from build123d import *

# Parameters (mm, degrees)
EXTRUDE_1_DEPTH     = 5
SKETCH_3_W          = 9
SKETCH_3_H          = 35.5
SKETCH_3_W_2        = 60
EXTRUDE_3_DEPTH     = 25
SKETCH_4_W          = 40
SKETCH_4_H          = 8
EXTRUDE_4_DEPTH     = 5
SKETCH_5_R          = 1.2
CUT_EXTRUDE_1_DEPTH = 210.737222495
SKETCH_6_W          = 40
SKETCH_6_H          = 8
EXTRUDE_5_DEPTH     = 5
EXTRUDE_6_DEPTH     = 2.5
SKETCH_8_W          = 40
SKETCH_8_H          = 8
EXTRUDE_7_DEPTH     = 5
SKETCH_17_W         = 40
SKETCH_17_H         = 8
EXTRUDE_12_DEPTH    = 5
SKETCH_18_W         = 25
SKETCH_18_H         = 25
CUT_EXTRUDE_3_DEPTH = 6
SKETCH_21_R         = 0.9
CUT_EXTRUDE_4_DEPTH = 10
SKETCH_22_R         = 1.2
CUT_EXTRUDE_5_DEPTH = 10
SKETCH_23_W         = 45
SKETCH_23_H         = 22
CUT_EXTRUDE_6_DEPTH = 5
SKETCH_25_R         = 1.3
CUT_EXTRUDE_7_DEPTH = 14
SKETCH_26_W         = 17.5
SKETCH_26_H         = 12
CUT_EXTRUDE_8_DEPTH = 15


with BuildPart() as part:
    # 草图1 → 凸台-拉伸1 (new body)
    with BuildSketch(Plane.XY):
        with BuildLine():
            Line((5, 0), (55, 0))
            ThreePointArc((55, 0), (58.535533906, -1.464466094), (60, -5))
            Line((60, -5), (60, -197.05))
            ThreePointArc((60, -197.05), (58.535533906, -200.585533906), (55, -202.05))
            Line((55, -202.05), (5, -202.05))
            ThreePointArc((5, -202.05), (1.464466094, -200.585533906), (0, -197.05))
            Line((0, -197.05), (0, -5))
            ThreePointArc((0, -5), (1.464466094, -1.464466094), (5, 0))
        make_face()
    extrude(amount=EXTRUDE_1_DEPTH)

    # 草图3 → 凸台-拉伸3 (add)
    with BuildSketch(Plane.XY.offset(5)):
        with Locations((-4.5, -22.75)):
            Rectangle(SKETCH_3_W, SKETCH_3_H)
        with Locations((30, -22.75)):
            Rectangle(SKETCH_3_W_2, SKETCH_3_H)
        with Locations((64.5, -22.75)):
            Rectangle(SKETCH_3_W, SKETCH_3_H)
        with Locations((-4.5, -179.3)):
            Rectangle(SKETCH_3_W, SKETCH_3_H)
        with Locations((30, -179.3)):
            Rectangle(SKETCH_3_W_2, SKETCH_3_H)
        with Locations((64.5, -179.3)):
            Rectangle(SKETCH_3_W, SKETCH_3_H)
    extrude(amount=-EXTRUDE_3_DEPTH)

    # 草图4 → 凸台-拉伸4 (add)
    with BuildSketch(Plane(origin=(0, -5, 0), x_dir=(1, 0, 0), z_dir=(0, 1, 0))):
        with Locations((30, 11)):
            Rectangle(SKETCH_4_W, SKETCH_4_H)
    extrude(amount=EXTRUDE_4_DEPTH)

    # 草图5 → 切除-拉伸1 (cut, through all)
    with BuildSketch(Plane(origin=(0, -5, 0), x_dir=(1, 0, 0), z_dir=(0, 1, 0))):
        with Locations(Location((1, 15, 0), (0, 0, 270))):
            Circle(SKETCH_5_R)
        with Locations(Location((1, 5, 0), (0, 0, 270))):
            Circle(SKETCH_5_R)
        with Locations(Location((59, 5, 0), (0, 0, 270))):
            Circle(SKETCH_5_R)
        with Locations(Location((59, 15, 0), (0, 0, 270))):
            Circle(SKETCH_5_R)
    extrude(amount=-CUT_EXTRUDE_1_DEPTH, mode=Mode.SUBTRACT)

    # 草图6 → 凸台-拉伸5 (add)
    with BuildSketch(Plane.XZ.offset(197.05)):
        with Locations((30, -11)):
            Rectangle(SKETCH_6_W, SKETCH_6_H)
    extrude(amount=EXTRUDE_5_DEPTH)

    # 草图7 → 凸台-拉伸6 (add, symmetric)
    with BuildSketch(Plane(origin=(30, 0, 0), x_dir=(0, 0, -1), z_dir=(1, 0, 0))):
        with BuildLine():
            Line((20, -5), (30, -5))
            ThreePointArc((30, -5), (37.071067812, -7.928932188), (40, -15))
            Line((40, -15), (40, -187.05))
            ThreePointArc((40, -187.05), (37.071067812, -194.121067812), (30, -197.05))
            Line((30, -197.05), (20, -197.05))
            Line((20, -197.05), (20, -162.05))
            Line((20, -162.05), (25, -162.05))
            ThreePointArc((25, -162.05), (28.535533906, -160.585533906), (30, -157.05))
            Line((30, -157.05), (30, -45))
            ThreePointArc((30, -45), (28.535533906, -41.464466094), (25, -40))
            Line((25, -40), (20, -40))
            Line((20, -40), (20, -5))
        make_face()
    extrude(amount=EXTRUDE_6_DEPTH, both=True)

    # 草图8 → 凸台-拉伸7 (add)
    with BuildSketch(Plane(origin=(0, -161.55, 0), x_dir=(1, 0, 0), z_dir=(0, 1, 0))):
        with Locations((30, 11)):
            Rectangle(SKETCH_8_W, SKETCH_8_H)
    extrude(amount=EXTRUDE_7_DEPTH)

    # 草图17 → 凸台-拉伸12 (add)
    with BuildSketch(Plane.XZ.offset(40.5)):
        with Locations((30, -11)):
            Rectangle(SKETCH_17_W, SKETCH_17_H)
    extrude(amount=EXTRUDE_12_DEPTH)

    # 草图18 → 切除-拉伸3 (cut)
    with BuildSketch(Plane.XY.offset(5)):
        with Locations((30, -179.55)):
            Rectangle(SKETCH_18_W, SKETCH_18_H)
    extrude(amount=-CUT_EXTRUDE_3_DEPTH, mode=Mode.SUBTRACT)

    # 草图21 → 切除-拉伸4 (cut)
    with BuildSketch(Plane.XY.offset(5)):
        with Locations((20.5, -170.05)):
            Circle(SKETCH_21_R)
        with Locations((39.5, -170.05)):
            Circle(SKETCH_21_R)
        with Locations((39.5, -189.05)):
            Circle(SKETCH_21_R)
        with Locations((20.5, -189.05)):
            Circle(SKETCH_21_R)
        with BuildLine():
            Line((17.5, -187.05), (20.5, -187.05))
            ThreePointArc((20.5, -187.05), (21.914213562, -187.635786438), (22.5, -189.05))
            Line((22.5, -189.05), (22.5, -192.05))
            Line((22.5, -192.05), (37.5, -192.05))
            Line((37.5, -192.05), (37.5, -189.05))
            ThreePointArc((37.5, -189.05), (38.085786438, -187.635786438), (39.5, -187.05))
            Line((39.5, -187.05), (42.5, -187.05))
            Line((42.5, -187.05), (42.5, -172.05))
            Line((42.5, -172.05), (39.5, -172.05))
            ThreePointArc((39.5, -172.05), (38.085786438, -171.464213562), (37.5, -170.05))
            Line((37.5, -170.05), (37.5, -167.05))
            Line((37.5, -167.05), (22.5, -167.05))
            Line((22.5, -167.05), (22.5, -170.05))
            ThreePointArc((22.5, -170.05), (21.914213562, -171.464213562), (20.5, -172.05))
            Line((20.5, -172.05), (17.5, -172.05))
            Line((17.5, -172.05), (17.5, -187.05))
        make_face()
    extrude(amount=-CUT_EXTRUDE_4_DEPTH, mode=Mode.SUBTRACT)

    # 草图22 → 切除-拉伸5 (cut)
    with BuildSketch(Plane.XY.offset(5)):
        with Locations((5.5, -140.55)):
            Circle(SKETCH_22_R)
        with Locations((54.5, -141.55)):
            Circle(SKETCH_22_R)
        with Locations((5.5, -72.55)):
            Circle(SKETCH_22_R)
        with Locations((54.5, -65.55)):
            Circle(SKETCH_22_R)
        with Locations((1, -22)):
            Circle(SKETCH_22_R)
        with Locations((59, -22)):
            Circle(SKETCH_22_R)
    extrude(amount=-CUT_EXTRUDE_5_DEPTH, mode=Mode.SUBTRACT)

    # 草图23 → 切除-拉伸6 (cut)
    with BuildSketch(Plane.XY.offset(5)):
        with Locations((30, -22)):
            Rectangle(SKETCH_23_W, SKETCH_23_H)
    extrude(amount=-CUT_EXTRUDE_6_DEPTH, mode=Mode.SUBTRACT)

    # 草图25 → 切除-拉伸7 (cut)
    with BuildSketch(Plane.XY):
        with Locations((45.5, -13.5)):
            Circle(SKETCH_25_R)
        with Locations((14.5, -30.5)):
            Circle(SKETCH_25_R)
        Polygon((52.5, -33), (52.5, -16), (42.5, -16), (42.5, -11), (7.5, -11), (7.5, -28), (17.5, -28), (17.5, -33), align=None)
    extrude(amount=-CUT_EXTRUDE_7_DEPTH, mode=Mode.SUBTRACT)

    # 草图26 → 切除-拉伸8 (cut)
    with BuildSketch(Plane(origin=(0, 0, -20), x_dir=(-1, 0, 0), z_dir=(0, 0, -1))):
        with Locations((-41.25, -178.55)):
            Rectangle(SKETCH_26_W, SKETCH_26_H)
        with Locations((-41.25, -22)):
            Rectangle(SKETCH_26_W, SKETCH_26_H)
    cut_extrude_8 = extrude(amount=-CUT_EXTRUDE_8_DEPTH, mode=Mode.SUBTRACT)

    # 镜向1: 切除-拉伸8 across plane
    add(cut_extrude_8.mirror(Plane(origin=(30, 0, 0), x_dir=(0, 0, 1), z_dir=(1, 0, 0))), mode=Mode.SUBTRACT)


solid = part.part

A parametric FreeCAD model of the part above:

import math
import FreeCAD as App
import Part
import Sketcher
from FreeCAD import Vector


def add_polygon(sketch, points):
    """Adds a closed chain of lines whose ends are joined by coincident constraints."""
    first, n = sketch.GeometryCount, len(points)
    for a, b in zip(points, points[1:] + points[:1]):
        sketch.addGeometry(Part.LineSegment(App.Vector(*a, 0), App.Vector(*b, 0)), False)
    for i in range(n):
        sketch.addConstraint(Sketcher.Constraint("Coincident", first + i, 2, first + (i + 1) % n, 1))

doc = App.newDocument("Part")
body = doc.addObject("PartDesign::Body", "Body")

# Sketch on XY plane
sketch1 = body.newObject("Sketcher::SketchObject", "Sketch")
sketch1.AttachmentSupport = (doc.getObject("XY_Plane"), [""])
sketch1.MapMode = "FlatFace"
sketch1.addGeometry([
    Part.LineSegment(Vector(55, 0, 0), Vector(5, 0, 0)),  # 0
    Part.ArcOfCircle(Part.Circle(Vector(5, -5, 0), Vector(0, 0, 1), 5), math.radians(90), math.radians(180)),  # 1
    Part.LineSegment(Vector(0, -5, 0), Vector(0, -197, 0)),  # 2
    Part.ArcOfCircle(Part.Circle(Vector(5, -197, 0), Vector(0, 0, 1), 5), math.radians(180), math.radians(270)),  # 3
    Part.LineSegment(Vector(5, -202, 0), Vector(55, -202, 0)),  # 4
    Part.ArcOfCircle(Part.Circle(Vector(55, -197, 0), Vector(0, 0, 1), 5), math.radians(-90), math.radians(0)),  # 5
    Part.LineSegment(Vector(60, -197, 0), Vector(60, -5, 0)),  # 6
    Part.ArcOfCircle(Part.Circle(Vector(55, -5, 0), Vector(0, 0, 1), 5), math.radians(0), math.radians(90)),  # 7
], False)
sketch1.addConstraint([
    Sketcher.Constraint("Tangent", 0, 2, 1, 1),
    Sketcher.Constraint("Tangent", 1, 2, 2, 1),
    Sketcher.Constraint("Tangent", 2, 2, 3, 1),
    Sketcher.Constraint("Tangent", 3, 2, 4, 1),
    Sketcher.Constraint("Tangent", 4, 2, 5, 1),
    Sketcher.Constraint("Tangent", 5, 2, 6, 1),
    Sketcher.Constraint("Tangent", 6, 2, 7, 1),
    Sketcher.Constraint("Tangent", 7, 2, 0, 1),
    Sketcher.Constraint("Horizontal", 0),
    Sketcher.Constraint("Vertical", 2),
    Sketcher.Constraint("Horizontal", 4),
    Sketcher.Constraint("Vertical", 6),
    Sketcher.Constraint("Equal", 1, 3),
    Sketcher.Constraint("Equal", 3, 5),
    Sketcher.Constraint("Equal", 5, 7),
    Sketcher.Constraint("PointOnObject", 0, 2, -1),
    Sketcher.Constraint("PointOnObject", 1, 2, -2),
    Sketcher.Constraint("Radius", 1, 5.0),
    Sketcher.Constraint("DistanceX", 0, 2, 0, 1, 50.0),
    Sketcher.Constraint("DistanceY", 2, 2, 2, 1, 192.05),
])
pad1 = body.newObject("PartDesign::Pad", "Pad")
pad1.Profile = sketch1
pad1.Length = 5

# Sketch on XY plane
sketch2 = body.newObject("Sketcher::SketchObject", "Sketch001")
sketch2.AttachmentSupport = (doc.getObject("XY_Plane"), [""])
sketch2.MapMode = "FlatFace"
sketch2.AttachmentOffset = App.Placement(Vector(0, 0, 5), App.Rotation())
add_polygon(sketch2, [(-9, -5), (-9, -40), (69, -40), (69, -5)])  # lines 0-3
add_polygon(sketch2, [(-9, -162), (-9, -197), (69, -197), (69, -162)])  # lines 4-7
sketch2.addConstraint([
    Sketcher.Constraint("Vertical", 0),
    Sketcher.Constraint("Horizontal", 1),
    Sketcher.Constraint("Vertical", 2),
    Sketcher.Constraint("Horizontal", 3),
    Sketcher.Constraint("Vertical", 4),
    Sketcher.Constraint("Horizontal", 5),
    Sketcher.Constraint("Vertical", 6),
    Sketcher.Constraint("Horizontal", 7),
    Sketcher.Constraint("Vertical", 3, 2, 4, 2),
    Sketcher.Constraint("Vertical", 2, 2, 5, 2),
    Sketcher.Constraint("Equal", 2, 4),
    Sketcher.Constraint("DistanceX", 1, 1, 1, 2, 78.0),
    Sketcher.Constraint("DistanceY", 0, 2, 0, 1, 35.5),
    Sketcher.Constraint("DistanceX", 0, 2, -1, 1, 9.0),
    Sketcher.Constraint("DistanceY", 2, 2, -1, 1, 5.0),
    Sketcher.Constraint("DistanceY", 4, 2, -1, 1, 197.05),
])
pad2 = body.newObject("PartDesign::Pad", "Pad001")
pad2.Profile = sketch2
pad2.Length = 25
pad2.Reversed = True

# Sketch on XZ plane
sketch3 = body.newObject("Sketcher::SketchObject", "Sketch002")
sketch3.AttachmentSupport = (doc.getObject("XZ_Plane"), [""])
sketch3.MapMode = "FlatFace"
sketch3.AttachmentOffset = App.Placement(Vector(0, 0, 5), App.Rotation())
add_polygon(sketch3, [(10, -15), (10, -7), (50, -7), (50, -15)])  # lines 0-3
sketch3.addConstraint([
    Sketcher.Constraint("Vertical", 0),
    Sketcher.Constraint("Horizontal", 1),
    Sketcher.Constraint("Vertical", 2),
    Sketcher.Constraint("Horizontal", 3),
    Sketcher.Constraint("DistanceX", 1, 1, 1, 2, 40.0),
    Sketcher.Constraint("DistanceY", 0, 1, 0, 2, 8.0),
    Sketcher.Constraint("DistanceX", -1, 1, 0, 2, 10.0),
    Sketcher.Constraint("DistanceY", 0, 2, -1, 1, 7.0),
])
pad3 = body.newObject("PartDesign::Pad", "Pad002")
pad3.Profile = sketch3
pad3.Length = 5
pad3.Reversed = True

# Sketch on XZ plane
sketch4 = body.newObject("Sketcher::SketchObject", "Sketch003")
sketch4.AttachmentSupport = (doc.getObject("XZ_Plane"), [""])
sketch4.MapMode = "FlatFace"
sketch4.AttachmentOffset = App.Placement(Vector(0, 0, 5), App.Rotation())
sketch4.addGeometry([
    Part.Circle(Vector(1, -15, 0), Vector(0, 0, 1), 1.2),
    Part.Circle(Vector(1, -5, 0), Vector(0, 0, 1), 1.2),
    Part.Circle(Vector(59, -5, 0), Vector(0, 0, 1), 1.2),
    Part.Circle(Vector(59, -15, 0), Vector(0, 0, 1), 1.2),
], False)
sketch4.addConstraint([
    Sketcher.Constraint("Equal", 0, 1),
    Sketcher.Constraint("Equal", 1, 2),
    Sketcher.Constraint("Equal", 2, 3),
    Sketcher.Constraint("Horizontal", 1, 3, 2, 3),
    Sketcher.Constraint("Horizontal", 0, 3, 3, 3),
    Sketcher.Constraint("Vertical", 0, 3, 1, 3),
    Sketcher.Constraint("Vertical", 2, 3, 3, 3),
    Sketcher.Constraint("Diameter", 0, 2.4),
    Sketcher.Constraint("DistanceX", -1, 1, 0, 3, 1.0),
    Sketcher.Constraint("DistanceY", 0, 3, -1, 1, 15.0),
    Sketcher.Constraint("DistanceY", 1, 3, -1, 1, 5.0),
    Sketcher.Constraint("DistanceX", -1, 1, 2, 3, 59.0),
])
pocket1 = body.newObject("PartDesign::Pocket", "Pocket")
pocket1.Profile = sketch4
pocket1.Type = "ThroughAll"
pocket1.Reversed = True

# Sketch on XZ plane
sketch5 = body.newObject("Sketcher::SketchObject", "Sketch004")
sketch5.AttachmentSupport = (doc.getObject("XZ_Plane"), [""])
sketch5.MapMode = "FlatFace"
sketch5.AttachmentOffset = App.Placement(Vector(0, 0, 197.05), App.Rotation())
add_polygon(sketch5, [(10, -7), (10, -15), (50, -15), (50, -7)])  # lines 0-3
sketch5.addConstraint([
    Sketcher.Constraint("Vertical", 0),
    Sketcher.Constraint("Horizontal", 1),
    Sketcher.Constraint("Vertical", 2),
    Sketcher.Constraint("Horizontal", 3),
    Sketcher.Constraint("DistanceX", 1, 1, 1, 2, 40.0),
    Sketcher.Constraint("DistanceY", 0, 2, 0, 1, 8.0),
    Sketcher.Constraint("DistanceX", -1, 1, 0, 2, 10.0),
    Sketcher.Constraint("DistanceY", 0, 2, -1, 1, 15.0),
])
pad4 = body.newObject("PartDesign::Pad", "Pad003")
pad4.Profile = sketch5
pad4.Length = 5

# Sketch on YZ plane
sketch6 = body.newObject("Sketcher::SketchObject", "Sketch005")
sketch6.AttachmentSupport = (doc.getObject("YZ_Plane"), [""])
sketch6.MapMode = "FlatFace"
sketch6.AttachmentOffset = App.Placement(Vector(0, 0, 30), App.Rotation())
sketch6.addGeometry([
    Part.LineSegment(Vector(-5, -30, 0), Vector(-5, -20, 0)),  # 0
    Part.LineSegment(Vector(-5, -20, 0), Vector(-40, -20, 0)),  # 1
    Part.LineSegment(Vector(-40, -20, 0), Vector(-40, -25, 0)),  # 2
    Part.ArcOfCircle(Part.Circle(Vector(-45, -25, 0), Vector(0, 0, 1), 5), math.radians(-90), math.radians(0)),  # 3
    Part.LineSegment(Vector(-45, -30, 0), Vector(-157, -30, 0)),  # 4
    Part.ArcOfCircle(Part.Circle(Vector(-157, -25, 0), Vector(0, 0, 1), 5), math.radians(180), math.radians(270)),  # 5
    Part.LineSegment(Vector(-162, -25, 0), Vector(-162, -20, 0)),  # 6
    Part.LineSegment(Vector(-162, -20, 0), Vector(-197, -20, 0)),  # 7
    Part.LineSegment(Vector(-197, -20, 0), Vector(-197, -30, 0)),  # 8
    Part.ArcOfCircle(Part.Circle(Vector(-187, -30, 0), Vector(0, 0, 1), 10), math.radians(180), math.radians(270)),  # 9
    Part.LineSegment(Vector(-187, -40, 0), Vector(-15, -40, 0)),  # 10
    Part.ArcOfCircle(Part.Circle(Vector(-15, -30, 0), Vector(0, 0, 1), 10), math.radians(-90), math.radians(0)),  # 11
], False)
sketch6.addConstraint([
    Sketcher.Constraint("Coincident", 0, 2, 1, 1),
    Sketcher.Constraint("Coincident", 1, 2, 2, 1),
    Sketcher.Constraint("Tangent", 2, 2, 3, 2),
    Sketcher.Constraint("Tangent", 3, 1, 4, 1),
    Sketcher.Constraint("Tangent", 4, 2, 5, 2),
    Sketcher.Constraint("Tangent", 5, 1, 6, 1),
    Sketcher.Constraint("Coincident", 6, 2, 7, 1),
    Sketcher.Constraint("Coincident", 7, 2, 8, 1),
    Sketcher.Constraint("Tangent", 8, 2, 9, 1),
    Sketcher.Constraint("Tangent", 9, 2, 10, 1),
    Sketcher.Constraint("Tangent", 10, 2, 11, 1),
    Sketcher.Constraint("Tangent", 11, 2, 0, 1),
    Sketcher.Constraint("Vertical", 0),
    Sketcher.Constraint("Horizontal", 1),
    Sketcher.Constraint("Vertical", 2),
    Sketcher.Constraint("Horizontal", 4),
    Sketcher.Constraint("Vertical", 6),
    Sketcher.Constraint("Horizontal", 7),
    Sketcher.Constraint("Vertical", 8),
    Sketcher.Constraint("Horizontal", 10),
    Sketcher.Constraint("Equal", 3, 5),
    Sketcher.Constraint("Equal", 9, 11),
    Sketcher.Constraint("Horizontal", 11, 3, 3, 1),
    Sketcher.Constraint("Horizontal", 1, 2, 6, 2),
    Sketcher.Constraint("Equal", 1, 7),
    Sketcher.Constraint("Radius", 3, 5.0),
    Sketcher.Constraint("Radius", 9, 10.0),
    Sketcher.Constraint("DistanceX", 1, 2, 1, 1, 35.0),
    Sketcher.Constraint("DistanceY", 0, 1, 0, 2, 10.0),
    Sketcher.Constraint("DistanceX", 3, 3, -1, 1, 45.0),
    Sketcher.Constraint("DistanceY", 3, 3, -1, 1, 25.0),
    Sketcher.Constraint("DistanceX", 4, 2, 4, 1, 112.05),
])
pad5 = body.newObject("PartDesign::Pad", "Pad004")
pad5.Profile = sketch6
pad5.Length = 5
pad5.Midplane = True

# Sketch on XZ plane
sketch7 = body.newObject("Sketcher::SketchObject", "Sketch006")
sketch7.AttachmentSupport = (doc.getObject("XZ_Plane"), [""])
sketch7.MapMode = "FlatFace"
sketch7.AttachmentOffset = App.Placement(Vector(0, 0, 161.55), App.Rotation())
add_polygon(sketch7, [(10, -15), (10, -7), (50, -7), (50, -15)])  # lines 0-3
sketch7.addConstraint([
    Sketcher.Constraint("Vertical", 0),
    Sketcher.Constraint("Horizontal", 1),
    Sketcher.Constraint("Vertical", 2),
    Sketcher.Constraint("Horizontal", 3),
    Sketcher.Constraint("DistanceX", 1, 1, 1, 2, 40.0),
    Sketcher.Constraint("DistanceY", 0, 1, 0, 2, 8.0),
    Sketcher.Constraint("DistanceX", -1, 1, 0, 2, 10.0),
    Sketcher.Constraint("DistanceY", 0, 2, -1, 1, 7.0),
])
pad6 = body.newObject("PartDesign::Pad", "Pad005")
pad6.Profile = sketch7
pad6.Length = 5
pad6.Reversed = True

# Sketch on XZ plane
sketch8 = body.newObject("Sketcher::SketchObject", "Sketch007")
sketch8.AttachmentSupport = (doc.getObject("XZ_Plane"), [""])
sketch8.MapMode = "FlatFace"
sketch8.AttachmentOffset = App.Placement(Vector(0, 0, 40.5), App.Rotation())
add_polygon(sketch8, [(10, -7), (10, -15), (50, -15), (50, -7)])  # lines 0-3
sketch8.addConstraint([
    Sketcher.Constraint("Vertical", 0),
    Sketcher.Constraint("Horizontal", 1),
    Sketcher.Constraint("Vertical", 2),
    Sketcher.Constraint("Horizontal", 3),
    Sketcher.Constraint("DistanceX", 1, 1, 1, 2, 40.0),
    Sketcher.Constraint("DistanceY", 0, 2, 0, 1, 8.0),
    Sketcher.Constraint("DistanceX", -1, 1, 0, 2, 10.0),
    Sketcher.Constraint("DistanceY", 0, 2, -1, 1, 15.0),
])
pad7 = body.newObject("PartDesign::Pad", "Pad006")
pad7.Profile = sketch8
pad7.Length = 5

# Sketch on XY plane
sketch9 = body.newObject("Sketcher::SketchObject", "Sketch008")
sketch9.AttachmentSupport = (doc.getObject("XY_Plane"), [""])
sketch9.MapMode = "FlatFace"
sketch9.AttachmentOffset = App.Placement(Vector(0, 0, 5), App.Rotation())
add_polygon(sketch9, [(18, -167), (18, -192), (42, -192), (42, -167)])  # lines 0-3
sketch9.addConstraint([
    Sketcher.Constraint("Vertical", 0),
    Sketcher.Constraint("Horizontal", 1),
    Sketcher.Constraint("Vertical", 2),
    Sketcher.Constraint("Horizontal", 3),
    Sketcher.Constraint("Equal", 3, 0),
    Sketcher.Constraint("DistanceX", 1, 1, 1, 2, 25.0),
    Sketcher.Constraint("DistanceX", -1, 1, 0, 2, 17.5),
    Sketcher.Constraint("DistanceY", 0, 2, -1, 1, 192.05),
])
pocket2 = body.newObject("PartDesign::Pocket", "Pocket001")
pocket2.Profile = sketch9
pocket2.Length = 6

# Sketch on XY plane
sketch10 = body.newObject("Sketcher::SketchObject", "Sketch009")
sketch10.AttachmentSupport = (doc.getObject("XY_Plane"), [""])
sketch10.MapMode = "FlatFace"
sketch10.AttachmentOffset = App.Placement(Vector(0, 0, 5), App.Rotation())
sketch10.addGeometry([
    Part.Circle(Vector(20.5, -170.1, 0), Vector(0, 0, 1), 0.9),  # 0
    Part.Circle(Vector(39.5, -170.1, 0), Vector(0, 0, 1), 0.9),  # 1
    Part.Circle(Vector(39.5, -189.1, 0), Vector(0, 0, 1), 0.9),  # 2
    Part.Circle(Vector(20.5, -189.1, 0), Vector(0, 0, 1), 0.9),  # 3
    Part.LineSegment(Vector(17.5, -187.1, 0), Vector(20.5, -187.1, 0)),  # 4
    Part.ArcOfCircle(Part.Circle(Vector(20.5, -189.1, 0), Vector(0, 0, 1), 2), math.radians(0), math.radians(90)),  # 5
    Part.LineSegment(Vector(22.5, -189.1, 0), Vector(22.5, -192.1, 0)),  # 6
    Part.LineSegment(Vector(22.5, -192.1, 0), Vector(37.5, -192.1, 0)),  # 7
    Part.LineSegment(Vector(37.5, -192.1, 0), Vector(37.5, -189.1, 0)),  # 8
    Part.ArcOfCircle(Part.Circle(Vector(39.5, -189.1, 0), Vector(0, 0, 1), 2), math.radians(90), math.radians(180)),  # 9
    Part.LineSegment(Vector(39.5, -187.1, 0), Vector(42.5, -187.1, 0)),  # 10
    Part.LineSegment(Vector(42.5, -187.1, 0), Vector(42.5, -172.1, 0)),  # 11
    Part.LineSegment(Vector(42.5, -172.1, 0), Vector(39.5, -172.1, 0)),  # 12
    Part.ArcOfCircle(Part.Circle(Vector(39.5, -170, 0), Vector(0, 0, 1), 2), math.radians(-180), math.radians(-90)),  # 13
    Part.LineSegment(Vector(37.5, -170.1, 0), Vector(37.5, -167.1, 0)),  # 14
    Part.LineSegment(Vector(37.5, -167.1, 0), Vector(22.5, -167.1, 0)),  # 15
    Part.LineSegment(Vector(22.5, -167.1, 0), Vector(22.5, -170.1, 0)),  # 16
    Part.ArcOfCircle(Part.Circle(Vector(20.5, -170, 0), Vector(0, 0, 1), 2), math.radians(-90), math.radians(0)),  # 17
    Part.LineSegment(Vector(20.5, -172.1, 0), Vector(17.5, -172.1, 0)),  # 18
    Part.LineSegment(Vector(17.5, -172.1, 0), Vector(17.5, -187.1, 0)),  # 19
], False)
sketch10.addConstraint([
    Sketcher.Constraint("Tangent", 4, 2, 5, 2),
    Sketcher.Constraint("Tangent", 5, 1, 6, 1),
    Sketcher.Constraint("Coincident", 6, 2, 7, 1),
    Sketcher.Constraint("Coincident", 7, 2, 8, 1),
    Sketcher.Constraint("Tangent", 8, 2, 9, 2),
    Sketcher.Constraint("Tangent", 9, 1, 10, 1),
    Sketcher.Constraint("Coincident", 10, 2, 11, 1),
    Sketcher.Constraint("Coincident", 11, 2, 12, 1),
    Sketcher.Constraint("Tangent", 12, 2, 13, 2),
    Sketcher.Constraint("Tangent", 13, 1, 14, 1),
    Sketcher.Constraint("Coincident", 14, 2, 15, 1),
    Sketcher.Constraint("Coincident", 15, 2, 16, 1),
    Sketcher.Constraint("Tangent", 16, 2, 17, 2),
    Sketcher.Constraint("Tangent", 17, 1, 18, 1),
    Sketcher.Constraint("Coincident", 18, 2, 19, 1),
    Sketcher.Constraint("Coincident", 19, 2, 4, 1),
    Sketcher.Constraint("Horizontal", 4),
    Sketcher.Constraint("Vertical", 6),
    Sketcher.Constraint("Horizontal", 7),
    Sketcher.Constraint("Vertical", 8),
    Sketcher.Constraint("Horizontal", 10),
    Sketcher.Constraint("Vertical", 11),
    Sketcher.Constraint("Horizontal", 12),
    Sketcher.Constraint("Vertical", 14),
    Sketcher.Constraint("Horizontal", 15),
    Sketcher.Constraint("Vertical", 16),
    Sketcher.Constraint("Horizontal", 18),
    Sketcher.Constraint("Vertical", 19),
    Sketcher.Constraint("Coincident", 5, 3, 3, 3),
    Sketcher.Constraint("Coincident", 9, 3, 2, 3),
    Sketcher.Constraint("Coincident", 13, 3, 1, 3),
    Sketcher.Constraint("Coincident", 17, 3, 0, 3),
    Sketcher.Constraint("Equal", 0, 1),
    Sketcher.Constraint("Equal", 1, 2),
    Sketcher.Constraint("Equal", 2, 3),
    Sketcher.Constraint("Equal", 5, 9),
    Sketcher.Constraint("Equal", 9, 13),
    Sketcher.Constraint("Equal", 13, 17),
    Sketcher.Constraint("Horizontal", 0, 3, 1, 3),
    Sketcher.Constraint("Horizontal", 2, 3, 3, 3),
    Sketcher.Constraint("Vertical", 1, 3, 2, 3),
    Sketcher.Constraint("Vertical", 0, 3, 3, 3),
    Sketcher.Constraint("Equal", 4, 10),
    Sketcher.Constraint("Equal", 18, 6),
    Sketcher.Constraint("Equal", 15, 11),
    Sketcher.Constraint("Equal", 8, 14),
    Sketcher.Constraint("Radius", 5, 2.0),
    Sketcher.Constraint("Diameter", 0, 1.8),
    Sketcher.Constraint("DistanceX", 4, 1, 4, 2, 3.0),
    Sketcher.Constraint("DistanceX", 7, 1, 7, 2, 15.0),
    Sketcher.Constraint("DistanceX", -1, 1, 0, 3, 20.5),
    Sketcher.Constraint("DistanceY", 0, 3, -1, 1, 170.05),
])
pocket3 = body.newObject("PartDesign::Pocket", "Pocket002")
pocket3.Profile = sketch10
pocket3.Length = 10

# Sketch on XY plane
sketch11 = body.newObject("Sketcher::SketchObject", "Sketch010")
sketch11.AttachmentSupport = (doc.getObject("XY_Plane"), [""])
sketch11.MapMode = "FlatFace"
sketch11.AttachmentOffset = App.Placement(Vector(0, 0, 5), App.Rotation())
sketch11.addGeometry([
    Part.Circle(Vector(5.5, -140.6, 0), Vector(0, 0, 1), 1.2),  # 0
    Part.Circle(Vector(54.5, -141.6, 0), Vector(0, 0, 1), 1.2),  # 1
    Part.Circle(Vector(5.5, -72.5, 0), Vector(0, 0, 1), 1.2),  # 2
    Part.Circle(Vector(54.5, -65.5, 0), Vector(0, 0, 1), 1.2),  # 3
    Part.Circle(Vector(1, -22, 0), Vector(0, 0, 1), 1.2),  # 4
    Part.Circle(Vector(59, -22, 0), Vector(0, 0, 1), 1.2),  # 5
], False)
sketch11.addConstraint([
    Sketcher.Constraint("Equal", 0, 1),
    Sketcher.Constraint("Equal", 1, 2),
    Sketcher.Constraint("Equal", 2, 3),
    Sketcher.Constraint("Equal", 3, 4),
    Sketcher.Constraint("Equal", 4, 5),
    Sketcher.Constraint("Horizontal", 4, 3, 5, 3),
    Sketcher.Constraint("Vertical", 0, 3, 2, 3),
    Sketcher.Constraint("Vertical", 1, 3, 3, 3),
    Sketcher.Constraint("Diameter", 0, 2.4),
    Sketcher.Constraint("DistanceX", -1, 1, 4, 3, 1.0),
    Sketcher.Constraint("DistanceY", 4, 3, -1, 1, 22.0),
    Sketcher.Constraint("DistanceX", -1, 1, 5, 3, 59.0),
    Sketcher.Constraint("DistanceX", 0, 3, 1, 3, 49.0),
    Sketcher.Constraint("DistanceY", 1, 3, 0, 3, 1.0),
    Sketcher.Constraint("DistanceY", 0, 3, 2, 3, 68.0),
    Sketcher.Constraint("DistanceY", 2, 3, 3, 3, 7.0),
    Sketcher.Constraint("DistanceX", -1, 1, 0, 3, 5.5),
    Sketcher.Constraint("DistanceY", 0, 3, -1, 1, 140.55),
])
pocket4 = body.newObject("PartDesign::Pocket", "Pocket003")
pocket4.Profile = sketch11
pocket4.Length = 10

# Sketch on XY plane
sketch12 = body.newObject("Sketcher::SketchObject", "Sketch011")
sketch12.AttachmentSupport = (doc.getObject("XY_Plane"), [""])
sketch12.MapMode = "FlatFace"
sketch12.AttachmentOffset = App.Placement(Vector(0, 0, 5), App.Rotation())
add_polygon(sketch12, [(8, -11), (8, -33), (52, -33), (52, -11)])  # lines 0-3
sketch12.addConstraint([
    Sketcher.Constraint("Vertical", 0),
    Sketcher.Constraint("Horizontal", 1),
    Sketcher.Constraint("Vertical", 2),
    Sketcher.Constraint("Horizontal", 3),
    Sketcher.Constraint("DistanceX", 1, 1, 1, 2, 45.0),
    Sketcher.Constraint("DistanceY", 0, 2, 0, 1, 22.0),
    Sketcher.Constraint("DistanceY", 0, 2, -1, 1, 33.0),
    Sketcher.Constraint("DistanceX", -1, 1, 0, 2, 7.5),
])
pocket5 = body.newObject("PartDesign::Pocket", "Pocket004")
pocket5.Profile = sketch12
pocket5.Length = 5

# Sketch on XY plane
sketch13 = body.newObject("Sketcher::SketchObject", "Sketch012")
sketch13.AttachmentSupport = (doc.getObject("XY_Plane"), [""])
sketch13.MapMode = "FlatFace"
sketch13.addGeometry(Part.Circle(Vector(45.5, -13.5, 0), Vector(0, 0, 1), 1.3), False)  # 0
sketch13.addGeometry(Part.Circle(Vector(14.5, -30.5, 0), Vector(0, 0, 1), 1.3), False)  # 1
add_polygon(sketch13, [(52.5, -33), (52.5, -16), (42.5, -16), (42.5, -11), (7.5, -11), (7.5, -28), (17.5, -28), (17.5, -33)])  # lines 2-9
sketch13.addConstraint([
    Sketcher.Constraint("Vertical", 2),
    Sketcher.Constraint("Horizontal", 3),
    Sketcher.Constraint("Vertical", 4),
    Sketcher.Constraint("Horizontal", 5),
    Sketcher.Constraint("Vertical", 6),
    Sketcher.Constraint("Horizontal", 7),
    Sketcher.Constraint("Vertical", 8),
    Sketcher.Constraint("Horizontal", 9),
    Sketcher.Constraint("Equal", 0, 1),
    Sketcher.Constraint("Equal", 3, 7),
    Sketcher.Constraint("Equal", 2, 6),
    Sketcher.Constraint("Diameter", 0, 2.6),
    Sketcher.Constraint("DistanceX", 3, 2, 3, 1, 10.0),
    Sketcher.Constraint("DistanceX", 5, 2, 5, 1, 35.0),
    Sketcher.Constraint("DistanceY", 2, 1, 2, 2, 17.0),
    Sketcher.Constraint("DistanceY", 4, 1, 4, 2, 5.0),
    Sketcher.Constraint("DistanceY", 2, 2, -1, 1, 16.0),
    Sketcher.Constraint("DistanceX", 1, 3, 0, 3, 31.0),
    Sketcher.Constraint("DistanceY", 1, 3, 0, 3, 17.0),
    Sketcher.Constraint("DistanceX", 0, 3, 2, 2, 7.0),
    Sketcher.Constraint("DistanceX", -1, 1, 0, 3, 45.5),
    Sketcher.Constraint("DistanceY", 0, 3, -1, 1, 13.5),
])
pocket6 = body.newObject("PartDesign::Pocket", "Pocket005")
pocket6.Profile = sketch13
pocket6.Length = 14

# Sketch on XY plane
sketch14 = body.newObject("Sketcher::SketchObject", "Sketch013")
sketch14.AttachmentSupport = (doc.getObject("XY_Plane"), [""])
sketch14.MapMode = "FlatFace"
sketch14.AttachmentOffset = App.Placement(Vector(0, 0, -20), App.Rotation())
add_polygon(sketch14, [(50, -173), (50, -185), (32, -185), (32, -173)])  # lines 0-3
add_polygon(sketch14, [(50, -16), (50, -28), (32, -28), (32, -16)])  # lines 4-7
sketch14.addConstraint([
    Sketcher.Constraint("Vertical", 0),
    Sketcher.Constraint("Horizontal", 1),
    Sketcher.Constraint("Vertical", 2),
    Sketcher.Constraint("Horizontal", 3),
    Sketcher.Constraint("Vertical", 4),
    Sketcher.Constraint("Horizontal", 5),
    Sketcher.Constraint("Vertical", 6),
    Sketcher.Constraint("Horizontal", 7),
    Sketcher.Constraint("Vertical", 3, 2, 4, 2),
    Sketcher.Constraint("Vertical", 2, 2, 5, 2),
    Sketcher.Constraint("Equal", 2, 4),
    Sketcher.Constraint("DistanceY", 0, 2, 0, 1, 12.0),
    Sketcher.Constraint("DistanceX", 1, 2, 1, 1, 17.5),
    Sketcher.Constraint("DistanceX", -1, 1, 0, 2, 50.0),
    Sketcher.Constraint("DistanceY", 4, 2, -1, 1, 28.0),
    Sketcher.Constraint("DistanceY", 0, 2, -1, 1, 184.55),
])
pocket7 = body.newObject("PartDesign::Pocket", "Pocket006")
pocket7.Profile = sketch14
pocket7.Length = 15
pocket7.Reversed = True
doc.recompute()

datumplane = body.newObject("PartDesign::Plane", "DatumPlane")
datumplane.AttachmentSupport = (doc.getObject("YZ_Plane"), [""])
datumplane.MapMode = "FlatFace"
datumplane.AttachmentOffset = App.Placement(Vector(0, 0, 30), App.Rotation())
mirrored = body.newObject("PartDesign::Mirrored", "Mirrored")
mirrored.Originals = [pocket7]
mirrored.MirrorPlane = (datumplane, [""])
body.Tip = mirrored

doc.recompute()
